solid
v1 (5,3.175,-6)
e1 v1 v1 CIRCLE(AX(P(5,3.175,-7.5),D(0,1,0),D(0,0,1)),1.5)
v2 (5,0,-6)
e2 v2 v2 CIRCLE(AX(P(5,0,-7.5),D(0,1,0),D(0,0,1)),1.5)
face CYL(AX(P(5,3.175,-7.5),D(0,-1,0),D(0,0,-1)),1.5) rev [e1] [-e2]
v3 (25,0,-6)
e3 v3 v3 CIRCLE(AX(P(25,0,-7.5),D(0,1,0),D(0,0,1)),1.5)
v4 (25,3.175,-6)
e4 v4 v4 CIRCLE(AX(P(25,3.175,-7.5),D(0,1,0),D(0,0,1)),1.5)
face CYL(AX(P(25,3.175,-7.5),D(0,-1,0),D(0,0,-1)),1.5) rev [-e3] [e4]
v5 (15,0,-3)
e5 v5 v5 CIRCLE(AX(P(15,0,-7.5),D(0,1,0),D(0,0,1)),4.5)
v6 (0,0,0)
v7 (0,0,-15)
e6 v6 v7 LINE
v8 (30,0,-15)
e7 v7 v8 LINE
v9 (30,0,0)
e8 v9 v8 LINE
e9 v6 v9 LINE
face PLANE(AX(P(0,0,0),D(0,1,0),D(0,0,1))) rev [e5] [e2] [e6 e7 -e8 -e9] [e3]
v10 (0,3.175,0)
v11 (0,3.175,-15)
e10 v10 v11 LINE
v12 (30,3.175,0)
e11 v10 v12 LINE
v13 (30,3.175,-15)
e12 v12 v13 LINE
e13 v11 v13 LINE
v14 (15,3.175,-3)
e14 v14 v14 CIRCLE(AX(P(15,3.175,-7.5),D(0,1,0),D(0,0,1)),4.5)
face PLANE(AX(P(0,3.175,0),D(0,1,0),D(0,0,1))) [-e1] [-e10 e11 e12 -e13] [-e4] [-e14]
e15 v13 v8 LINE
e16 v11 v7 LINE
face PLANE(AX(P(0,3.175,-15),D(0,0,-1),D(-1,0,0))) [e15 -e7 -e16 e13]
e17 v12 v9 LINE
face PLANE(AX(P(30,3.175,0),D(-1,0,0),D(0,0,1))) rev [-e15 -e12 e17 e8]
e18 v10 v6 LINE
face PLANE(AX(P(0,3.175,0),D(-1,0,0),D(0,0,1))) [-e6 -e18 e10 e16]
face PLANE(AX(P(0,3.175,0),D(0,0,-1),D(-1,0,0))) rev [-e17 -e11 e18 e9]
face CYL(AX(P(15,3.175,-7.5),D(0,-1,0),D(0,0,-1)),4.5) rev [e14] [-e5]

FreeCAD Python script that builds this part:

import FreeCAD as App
import Part
import Sketcher
from FreeCAD import Vector


def add_polygon(sketch, points):
    """Adds a closed chain of lines whose ends are joined by coincident constraints."""
    first, n = sketch.GeometryCount, len(points)
    for a, b in zip(points, points[1:] + points[:1]):
        sketch.addGeometry(Part.LineSegment(App.Vector(*a, 0), App.Vector(*b, 0)), False)
    for i in range(n):
        sketch.addConstraint(Sketcher.Constraint("Coincident", first + i, 2, first + (i + 1) % n, 1))

doc = App.newDocument("Part")
body = doc.addObject("PartDesign::Body", "Body")

# Sketch on XZ plane
sketch1 = body.newObject("Sketcher::SketchObject", "Sketch")
sketch1.AttachmentSupport = (doc.getObject("XZ_Plane"), [""])
sketch1.MapMode = "FlatFace"
add_polygon(sketch1, [(0, -15), (0, 0), (30, 0), (30, -15)])  # lines 0-3
sketch1.addGeometry(Part.Circle(Vector(5, -7.5, 0), Vector(0, 0, 1), 1.5), False)  # 4
sketch1.addGeometry(Part.Circle(Vector(15, -7.5, 0), Vector(0, 0, 1), 4.5), False)  # 5
sketch1.addGeometry(Part.Circle(Vector(25, -7.5, 0), Vector(0, 0, 1), 1.5), False)  # 6
sketch1.addConstraint(Sketcher.Constraint("Vertical", 0))
sketch1.addConstraint(Sketcher.Constraint("Horizontal", 1))
sketch1.addConstraint(Sketcher.Constraint("Vertical", 2))
sketch1.addConstraint(Sketcher.Constraint("Horizontal", 3))
sketch1.addConstraint(Sketcher.Constraint("Coincident", 0, 2, -1, 1))
sketch1.addConstraint(Sketcher.Constraint("Equal", 4, 6))
sketch1.addConstraint(Sketcher.Constraint("Horizontal", 4, 3, 5, 3))
sketch1.addConstraint(Sketcher.Constraint("Horizontal", 5, 3, 6, 3))
sketch1.addConstraint(Sketcher.Constraint("Diameter", 4, 3.0))
sketch1.addConstraint(Sketcher.Constraint("Diameter", 5, 9.0))
sketch1.addConstraint(Sketcher.Constraint("DistanceX", 1, 1, 1, 2, 30.0))
sketch1.addConstraint(Sketcher.Constraint("DistanceY", 0, 1, 0, 2, 15.0))
sketch1.addConstraint(Sketcher.Constraint("DistanceX", -1, 1, 4, 3, 5.0))
sketch1.addConstraint(Sketcher.Constraint("DistanceX", -1, 1, 5, 3, 15.0))
sketch1.addConstraint(Sketcher.Constraint("DistanceX", -1, 1, 6, 3, 25.0))
sketch1.addConstraint(Sketcher.Constraint("DistanceY", 4, 3, -1, 1, 7.5))
pad1 = body.newObject("PartDesign::Pad", "Pad")
pad1.Profile = sketch1
pad1.Length = 3.175
pad1.Reversed = True

doc.recompute()
